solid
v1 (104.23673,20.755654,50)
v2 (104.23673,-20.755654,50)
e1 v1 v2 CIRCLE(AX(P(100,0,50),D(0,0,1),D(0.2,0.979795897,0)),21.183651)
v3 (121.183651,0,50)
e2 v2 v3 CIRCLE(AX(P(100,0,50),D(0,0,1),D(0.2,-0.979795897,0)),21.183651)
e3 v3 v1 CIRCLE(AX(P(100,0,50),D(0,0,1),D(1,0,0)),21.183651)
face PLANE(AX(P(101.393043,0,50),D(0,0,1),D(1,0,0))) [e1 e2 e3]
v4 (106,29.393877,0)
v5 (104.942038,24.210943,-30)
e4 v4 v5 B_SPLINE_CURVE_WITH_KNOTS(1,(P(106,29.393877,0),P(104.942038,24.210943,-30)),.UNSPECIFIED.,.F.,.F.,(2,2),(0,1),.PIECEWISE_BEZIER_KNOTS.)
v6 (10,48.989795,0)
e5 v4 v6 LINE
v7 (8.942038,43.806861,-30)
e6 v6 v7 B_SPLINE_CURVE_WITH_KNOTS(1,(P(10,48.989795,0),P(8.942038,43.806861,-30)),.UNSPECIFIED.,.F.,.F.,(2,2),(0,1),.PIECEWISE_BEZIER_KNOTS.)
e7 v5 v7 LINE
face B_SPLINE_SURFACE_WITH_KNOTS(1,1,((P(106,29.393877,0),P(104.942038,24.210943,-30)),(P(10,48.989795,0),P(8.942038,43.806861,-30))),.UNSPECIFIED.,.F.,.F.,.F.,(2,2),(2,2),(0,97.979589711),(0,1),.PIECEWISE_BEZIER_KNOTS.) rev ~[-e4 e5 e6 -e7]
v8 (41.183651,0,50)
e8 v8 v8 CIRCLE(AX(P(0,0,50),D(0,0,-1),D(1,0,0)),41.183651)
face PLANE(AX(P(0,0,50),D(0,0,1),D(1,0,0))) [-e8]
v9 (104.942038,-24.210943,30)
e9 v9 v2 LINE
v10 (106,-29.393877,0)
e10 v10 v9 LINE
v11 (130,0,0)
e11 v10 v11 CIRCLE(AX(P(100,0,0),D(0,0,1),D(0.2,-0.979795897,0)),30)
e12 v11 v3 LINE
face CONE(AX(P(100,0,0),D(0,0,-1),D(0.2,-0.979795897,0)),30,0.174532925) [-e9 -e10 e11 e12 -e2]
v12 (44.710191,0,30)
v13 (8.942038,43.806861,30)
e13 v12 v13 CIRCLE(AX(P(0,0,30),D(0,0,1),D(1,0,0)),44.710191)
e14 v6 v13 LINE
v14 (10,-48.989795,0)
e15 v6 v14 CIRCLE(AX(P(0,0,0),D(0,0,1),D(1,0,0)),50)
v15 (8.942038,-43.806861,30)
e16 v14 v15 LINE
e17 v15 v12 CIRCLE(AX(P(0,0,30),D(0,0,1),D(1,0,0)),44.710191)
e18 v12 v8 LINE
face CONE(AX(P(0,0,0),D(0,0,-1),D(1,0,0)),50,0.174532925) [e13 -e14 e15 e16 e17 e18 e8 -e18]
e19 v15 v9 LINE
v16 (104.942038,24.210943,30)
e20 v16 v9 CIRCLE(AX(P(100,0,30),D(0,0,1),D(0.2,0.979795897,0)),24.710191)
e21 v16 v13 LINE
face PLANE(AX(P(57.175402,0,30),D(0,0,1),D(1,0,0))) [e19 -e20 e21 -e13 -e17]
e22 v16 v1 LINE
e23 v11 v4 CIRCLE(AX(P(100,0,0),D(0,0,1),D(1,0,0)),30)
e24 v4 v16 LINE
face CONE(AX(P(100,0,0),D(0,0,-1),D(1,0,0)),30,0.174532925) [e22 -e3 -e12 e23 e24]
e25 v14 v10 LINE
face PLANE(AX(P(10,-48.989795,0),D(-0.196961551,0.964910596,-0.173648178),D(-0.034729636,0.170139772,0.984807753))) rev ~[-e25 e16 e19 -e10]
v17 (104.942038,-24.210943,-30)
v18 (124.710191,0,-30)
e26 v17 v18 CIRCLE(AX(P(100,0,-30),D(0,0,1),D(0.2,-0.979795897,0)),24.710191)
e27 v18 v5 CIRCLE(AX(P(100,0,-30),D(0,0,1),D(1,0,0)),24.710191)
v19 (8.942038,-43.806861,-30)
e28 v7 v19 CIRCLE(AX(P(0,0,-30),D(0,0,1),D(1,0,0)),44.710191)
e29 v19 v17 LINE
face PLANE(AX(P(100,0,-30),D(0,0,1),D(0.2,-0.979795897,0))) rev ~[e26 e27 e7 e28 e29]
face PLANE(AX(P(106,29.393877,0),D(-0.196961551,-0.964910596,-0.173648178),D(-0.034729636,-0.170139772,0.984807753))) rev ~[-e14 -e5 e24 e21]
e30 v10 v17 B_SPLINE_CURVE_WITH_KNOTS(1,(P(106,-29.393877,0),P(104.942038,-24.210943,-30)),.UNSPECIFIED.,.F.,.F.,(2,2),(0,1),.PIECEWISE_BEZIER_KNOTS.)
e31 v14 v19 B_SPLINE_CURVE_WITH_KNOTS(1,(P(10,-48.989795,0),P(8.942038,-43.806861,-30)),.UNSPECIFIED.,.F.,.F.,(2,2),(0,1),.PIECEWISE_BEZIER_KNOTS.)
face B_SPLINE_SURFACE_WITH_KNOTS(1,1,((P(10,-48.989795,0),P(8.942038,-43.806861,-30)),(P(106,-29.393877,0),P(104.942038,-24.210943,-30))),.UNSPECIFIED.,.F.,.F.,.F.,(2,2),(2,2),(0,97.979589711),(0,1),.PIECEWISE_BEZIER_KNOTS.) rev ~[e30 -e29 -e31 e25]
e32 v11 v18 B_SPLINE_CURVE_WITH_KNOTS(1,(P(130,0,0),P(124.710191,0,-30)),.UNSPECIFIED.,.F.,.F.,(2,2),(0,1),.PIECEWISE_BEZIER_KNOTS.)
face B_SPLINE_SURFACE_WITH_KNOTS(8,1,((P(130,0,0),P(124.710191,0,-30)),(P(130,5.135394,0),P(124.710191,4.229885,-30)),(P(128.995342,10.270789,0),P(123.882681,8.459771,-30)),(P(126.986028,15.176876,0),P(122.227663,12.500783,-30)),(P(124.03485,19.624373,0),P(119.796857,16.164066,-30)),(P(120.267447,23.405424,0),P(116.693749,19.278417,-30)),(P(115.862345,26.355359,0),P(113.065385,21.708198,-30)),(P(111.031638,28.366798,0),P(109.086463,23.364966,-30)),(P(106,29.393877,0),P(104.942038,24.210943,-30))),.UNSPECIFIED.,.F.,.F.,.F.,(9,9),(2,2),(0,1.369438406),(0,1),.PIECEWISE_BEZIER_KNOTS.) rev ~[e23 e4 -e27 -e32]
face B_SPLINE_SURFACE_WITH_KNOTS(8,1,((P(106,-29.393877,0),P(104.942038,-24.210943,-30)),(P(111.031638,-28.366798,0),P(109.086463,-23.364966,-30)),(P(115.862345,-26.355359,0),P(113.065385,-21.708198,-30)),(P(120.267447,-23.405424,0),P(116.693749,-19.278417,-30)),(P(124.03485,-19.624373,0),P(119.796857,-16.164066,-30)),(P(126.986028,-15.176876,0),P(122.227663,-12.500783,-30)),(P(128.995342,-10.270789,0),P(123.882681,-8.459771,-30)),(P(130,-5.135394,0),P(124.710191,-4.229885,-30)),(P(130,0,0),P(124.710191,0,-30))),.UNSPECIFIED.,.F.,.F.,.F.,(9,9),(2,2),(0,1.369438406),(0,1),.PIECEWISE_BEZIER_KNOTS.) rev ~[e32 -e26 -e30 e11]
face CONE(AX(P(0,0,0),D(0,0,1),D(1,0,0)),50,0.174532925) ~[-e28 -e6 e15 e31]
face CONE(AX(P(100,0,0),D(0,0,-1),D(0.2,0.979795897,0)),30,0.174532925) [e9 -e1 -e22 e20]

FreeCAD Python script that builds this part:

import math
import FreeCAD as App
import Part
import Sketcher
Q = App.Units.Quantity

doc = App.newDocument("Part")
params = doc.addObject("Spreadsheet::Sheet", "Params")
for row, (alias, value) in enumerate([
    ("sketch1_diameter", "100 mm"),
    ("pad1_length", "50 mm"),
    ("pad1_taper", "-10 deg"),
    ("sketch2_radius", "30 mm"),
    ("pad2_length", "50 mm"),
    ("pad2_taper", "-10 deg"),
    ("sketch3_radius", "30 mm"),
    ("sketch3_radius2", "50 mm"),
    ("pad3_length", "60 mm"),
    ("pad3_taper", "-10 deg"),
], start=1):
    params.set(f"A{row}", alias)
    params.set(f"B{row}", "=" + value)
    params.setAlias(f"B{row}", alias)

body = doc.addObject("PartDesign::Body", "Body")

sketch1 = doc.addObject("Sketcher::SketchObject", "Sketch")
body.addObject(sketch1)
sketch1.AttachmentSupport = (doc.XY_Plane, [""])
sketch1.MapMode = "FlatFace"
sketch1.addGeometry(Part.Circle(App.Vector(0, 0, 0), App.Vector(0, 0, 1), 50), False)
sketch1.addConstraint([
    Sketcher.Constraint("Coincident", 0, 3, -1, 1),
    Sketcher.Constraint("Diameter", 0, Q("100 mm")),
])
sketch1.setExpression("Constraints[1]", "Params.sketch1_diameter")
pad1 = doc.addObject("PartDesign::Pad", "Pad")
body.addObject(pad1)
pad1.Profile = sketch1
pad1.setExpression("Length", "Params.pad1_length")
pad1.setExpression("TaperAngle", "Params.pad1_taper")
body2 = doc.addObject("PartDesign::Body", "Body001")

sketch2 = doc.addObject("Sketcher::SketchObject", "Sketch001")
body2.addObject(sketch2)
sketch2.AttachmentSupport = (doc.getObject("XY_Plane001"), [""])
sketch2.MapMode = "FlatFace"
sketch2.addGeometry([
    Part.ArcOfCircle(Part.Circle(App.Vector(100, 0, 0), App.Vector(0, 0, 1), 30), math.radians(0), math.radians(78)),
    Part.ArcOfCircle(Part.Circle(App.Vector(100, 0, 0), App.Vector(0, 0, 1), 30), math.radians(78), math.radians(282)),
    Part.ArcOfCircle(Part.Circle(App.Vector(100, 0, 0), App.Vector(0, 0, 1), 30), math.radians(-78), math.radians(0)),
], False)
sketch2.addConstraint([
    Sketcher.Constraint("Tangent", 0, 2, 1, 1),
    Sketcher.Constraint("Tangent", 1, 2, 2, 1),
    Sketcher.Constraint("Tangent", 2, 2, 0, 1),
    Sketcher.Constraint("Symmetric", 0, 2, 1, 2, -1),
    Sketcher.Constraint("PointOnObject", 2, 2, -1),
    Sketcher.Constraint("Radius", 0, Q("30 mm")),
    Sketcher.Constraint("DistanceX", -1, 1, 0, 3, Q("100 mm")),
    Sketcher.Constraint("DistanceX", -1, 1, 0, 2, Q("106 mm")),
])
sketch2.setExpression("Constraints[5]", "Params.sketch2_radius")
pad2 = doc.addObject("PartDesign::Pad", "Pad001")
body2.addObject(pad2)
pad2.Profile = sketch2
pad2.setExpression("Length", "Params.pad2_length")
pad2.setExpression("TaperAngle", "Params.pad2_taper")
body.AllowCompound = True
doc.recompute()

boolean = doc.addObject("PartDesign::Boolean", "Boolean")
body.addObject(boolean)
boolean.Type = "Fuse"
boolean.addObjects([body2])

sketch3 = doc.addObject("Sketcher::SketchObject", "Sketch002")
body.addObject(sketch3)
sketch3.AttachmentSupport = (doc.XY_Plane, [""])
sketch3.MapMode = "FlatFace"
sketch3.addGeometry([
    Part.LineSegment(App.Vector(10, -49, 0), App.Vector(106, -29, 0)),
    Part.ArcOfCircle(Part.Circle(App.Vector(100, 0, 0), App.Vector(0, 0, 1), 30), math.radians(-78), math.radians(0)),
    Part.ArcOfCircle(Part.Circle(App.Vector(100, 0, 0), App.Vector(0, 0, 1), 30), math.radians(0), math.radians(78)),
    Part.LineSegment(App.Vector(106, 29, 0), App.Vector(10, 49, 0)),
    Part.ArcOfCircle(Part.Circle(App.Vector(0, 0, 0), App.Vector(0, 0, 1), 50), math.radians(78), math.radians(282)),
], False)
sketch3.addConstraint([
    Sketcher.Constraint("Tangent", 0, 2, 1, 1),
    Sketcher.Constraint("Tangent", 1, 2, 2, 1),
    Sketcher.Constraint("Tangent", 2, 2, 3, 1),
    Sketcher.Constraint("Tangent", 3, 2, 4, 1),
    Sketcher.Constraint("Tangent", 4, 2, 0, 1),
    Sketcher.Constraint("Coincident", 4, 3, -1, 1),
    Sketcher.Constraint("Equal", 1, 2),
    Sketcher.Constraint("PointOnObject", 1, 3, -1),
    Sketcher.Constraint("PointOnObject", 1, 2, -1),
    Sketcher.Constraint("Radius", 1, Q("30 mm")),
    Sketcher.Constraint("Radius", 4, Q("50 mm")),
    Sketcher.Constraint("DistanceX", -1, 1, 1, 3, Q("100 mm")),
])
sketch3.setExpression("Constraints[9]", "Params.sketch3_radius")
sketch3.setExpression("Constraints[10]", "Params.sketch3_radius2")
pad3 = doc.addObject("PartDesign::Pad", "Pad002")
body.addObject(pad3)
pad3.Profile = sketch3
pad3.setExpression("Length", "Params.pad3_length")
pad3.Midplane = True
pad3.setExpression("TaperAngle", "Params.pad3_taper")

doc.recompute()
